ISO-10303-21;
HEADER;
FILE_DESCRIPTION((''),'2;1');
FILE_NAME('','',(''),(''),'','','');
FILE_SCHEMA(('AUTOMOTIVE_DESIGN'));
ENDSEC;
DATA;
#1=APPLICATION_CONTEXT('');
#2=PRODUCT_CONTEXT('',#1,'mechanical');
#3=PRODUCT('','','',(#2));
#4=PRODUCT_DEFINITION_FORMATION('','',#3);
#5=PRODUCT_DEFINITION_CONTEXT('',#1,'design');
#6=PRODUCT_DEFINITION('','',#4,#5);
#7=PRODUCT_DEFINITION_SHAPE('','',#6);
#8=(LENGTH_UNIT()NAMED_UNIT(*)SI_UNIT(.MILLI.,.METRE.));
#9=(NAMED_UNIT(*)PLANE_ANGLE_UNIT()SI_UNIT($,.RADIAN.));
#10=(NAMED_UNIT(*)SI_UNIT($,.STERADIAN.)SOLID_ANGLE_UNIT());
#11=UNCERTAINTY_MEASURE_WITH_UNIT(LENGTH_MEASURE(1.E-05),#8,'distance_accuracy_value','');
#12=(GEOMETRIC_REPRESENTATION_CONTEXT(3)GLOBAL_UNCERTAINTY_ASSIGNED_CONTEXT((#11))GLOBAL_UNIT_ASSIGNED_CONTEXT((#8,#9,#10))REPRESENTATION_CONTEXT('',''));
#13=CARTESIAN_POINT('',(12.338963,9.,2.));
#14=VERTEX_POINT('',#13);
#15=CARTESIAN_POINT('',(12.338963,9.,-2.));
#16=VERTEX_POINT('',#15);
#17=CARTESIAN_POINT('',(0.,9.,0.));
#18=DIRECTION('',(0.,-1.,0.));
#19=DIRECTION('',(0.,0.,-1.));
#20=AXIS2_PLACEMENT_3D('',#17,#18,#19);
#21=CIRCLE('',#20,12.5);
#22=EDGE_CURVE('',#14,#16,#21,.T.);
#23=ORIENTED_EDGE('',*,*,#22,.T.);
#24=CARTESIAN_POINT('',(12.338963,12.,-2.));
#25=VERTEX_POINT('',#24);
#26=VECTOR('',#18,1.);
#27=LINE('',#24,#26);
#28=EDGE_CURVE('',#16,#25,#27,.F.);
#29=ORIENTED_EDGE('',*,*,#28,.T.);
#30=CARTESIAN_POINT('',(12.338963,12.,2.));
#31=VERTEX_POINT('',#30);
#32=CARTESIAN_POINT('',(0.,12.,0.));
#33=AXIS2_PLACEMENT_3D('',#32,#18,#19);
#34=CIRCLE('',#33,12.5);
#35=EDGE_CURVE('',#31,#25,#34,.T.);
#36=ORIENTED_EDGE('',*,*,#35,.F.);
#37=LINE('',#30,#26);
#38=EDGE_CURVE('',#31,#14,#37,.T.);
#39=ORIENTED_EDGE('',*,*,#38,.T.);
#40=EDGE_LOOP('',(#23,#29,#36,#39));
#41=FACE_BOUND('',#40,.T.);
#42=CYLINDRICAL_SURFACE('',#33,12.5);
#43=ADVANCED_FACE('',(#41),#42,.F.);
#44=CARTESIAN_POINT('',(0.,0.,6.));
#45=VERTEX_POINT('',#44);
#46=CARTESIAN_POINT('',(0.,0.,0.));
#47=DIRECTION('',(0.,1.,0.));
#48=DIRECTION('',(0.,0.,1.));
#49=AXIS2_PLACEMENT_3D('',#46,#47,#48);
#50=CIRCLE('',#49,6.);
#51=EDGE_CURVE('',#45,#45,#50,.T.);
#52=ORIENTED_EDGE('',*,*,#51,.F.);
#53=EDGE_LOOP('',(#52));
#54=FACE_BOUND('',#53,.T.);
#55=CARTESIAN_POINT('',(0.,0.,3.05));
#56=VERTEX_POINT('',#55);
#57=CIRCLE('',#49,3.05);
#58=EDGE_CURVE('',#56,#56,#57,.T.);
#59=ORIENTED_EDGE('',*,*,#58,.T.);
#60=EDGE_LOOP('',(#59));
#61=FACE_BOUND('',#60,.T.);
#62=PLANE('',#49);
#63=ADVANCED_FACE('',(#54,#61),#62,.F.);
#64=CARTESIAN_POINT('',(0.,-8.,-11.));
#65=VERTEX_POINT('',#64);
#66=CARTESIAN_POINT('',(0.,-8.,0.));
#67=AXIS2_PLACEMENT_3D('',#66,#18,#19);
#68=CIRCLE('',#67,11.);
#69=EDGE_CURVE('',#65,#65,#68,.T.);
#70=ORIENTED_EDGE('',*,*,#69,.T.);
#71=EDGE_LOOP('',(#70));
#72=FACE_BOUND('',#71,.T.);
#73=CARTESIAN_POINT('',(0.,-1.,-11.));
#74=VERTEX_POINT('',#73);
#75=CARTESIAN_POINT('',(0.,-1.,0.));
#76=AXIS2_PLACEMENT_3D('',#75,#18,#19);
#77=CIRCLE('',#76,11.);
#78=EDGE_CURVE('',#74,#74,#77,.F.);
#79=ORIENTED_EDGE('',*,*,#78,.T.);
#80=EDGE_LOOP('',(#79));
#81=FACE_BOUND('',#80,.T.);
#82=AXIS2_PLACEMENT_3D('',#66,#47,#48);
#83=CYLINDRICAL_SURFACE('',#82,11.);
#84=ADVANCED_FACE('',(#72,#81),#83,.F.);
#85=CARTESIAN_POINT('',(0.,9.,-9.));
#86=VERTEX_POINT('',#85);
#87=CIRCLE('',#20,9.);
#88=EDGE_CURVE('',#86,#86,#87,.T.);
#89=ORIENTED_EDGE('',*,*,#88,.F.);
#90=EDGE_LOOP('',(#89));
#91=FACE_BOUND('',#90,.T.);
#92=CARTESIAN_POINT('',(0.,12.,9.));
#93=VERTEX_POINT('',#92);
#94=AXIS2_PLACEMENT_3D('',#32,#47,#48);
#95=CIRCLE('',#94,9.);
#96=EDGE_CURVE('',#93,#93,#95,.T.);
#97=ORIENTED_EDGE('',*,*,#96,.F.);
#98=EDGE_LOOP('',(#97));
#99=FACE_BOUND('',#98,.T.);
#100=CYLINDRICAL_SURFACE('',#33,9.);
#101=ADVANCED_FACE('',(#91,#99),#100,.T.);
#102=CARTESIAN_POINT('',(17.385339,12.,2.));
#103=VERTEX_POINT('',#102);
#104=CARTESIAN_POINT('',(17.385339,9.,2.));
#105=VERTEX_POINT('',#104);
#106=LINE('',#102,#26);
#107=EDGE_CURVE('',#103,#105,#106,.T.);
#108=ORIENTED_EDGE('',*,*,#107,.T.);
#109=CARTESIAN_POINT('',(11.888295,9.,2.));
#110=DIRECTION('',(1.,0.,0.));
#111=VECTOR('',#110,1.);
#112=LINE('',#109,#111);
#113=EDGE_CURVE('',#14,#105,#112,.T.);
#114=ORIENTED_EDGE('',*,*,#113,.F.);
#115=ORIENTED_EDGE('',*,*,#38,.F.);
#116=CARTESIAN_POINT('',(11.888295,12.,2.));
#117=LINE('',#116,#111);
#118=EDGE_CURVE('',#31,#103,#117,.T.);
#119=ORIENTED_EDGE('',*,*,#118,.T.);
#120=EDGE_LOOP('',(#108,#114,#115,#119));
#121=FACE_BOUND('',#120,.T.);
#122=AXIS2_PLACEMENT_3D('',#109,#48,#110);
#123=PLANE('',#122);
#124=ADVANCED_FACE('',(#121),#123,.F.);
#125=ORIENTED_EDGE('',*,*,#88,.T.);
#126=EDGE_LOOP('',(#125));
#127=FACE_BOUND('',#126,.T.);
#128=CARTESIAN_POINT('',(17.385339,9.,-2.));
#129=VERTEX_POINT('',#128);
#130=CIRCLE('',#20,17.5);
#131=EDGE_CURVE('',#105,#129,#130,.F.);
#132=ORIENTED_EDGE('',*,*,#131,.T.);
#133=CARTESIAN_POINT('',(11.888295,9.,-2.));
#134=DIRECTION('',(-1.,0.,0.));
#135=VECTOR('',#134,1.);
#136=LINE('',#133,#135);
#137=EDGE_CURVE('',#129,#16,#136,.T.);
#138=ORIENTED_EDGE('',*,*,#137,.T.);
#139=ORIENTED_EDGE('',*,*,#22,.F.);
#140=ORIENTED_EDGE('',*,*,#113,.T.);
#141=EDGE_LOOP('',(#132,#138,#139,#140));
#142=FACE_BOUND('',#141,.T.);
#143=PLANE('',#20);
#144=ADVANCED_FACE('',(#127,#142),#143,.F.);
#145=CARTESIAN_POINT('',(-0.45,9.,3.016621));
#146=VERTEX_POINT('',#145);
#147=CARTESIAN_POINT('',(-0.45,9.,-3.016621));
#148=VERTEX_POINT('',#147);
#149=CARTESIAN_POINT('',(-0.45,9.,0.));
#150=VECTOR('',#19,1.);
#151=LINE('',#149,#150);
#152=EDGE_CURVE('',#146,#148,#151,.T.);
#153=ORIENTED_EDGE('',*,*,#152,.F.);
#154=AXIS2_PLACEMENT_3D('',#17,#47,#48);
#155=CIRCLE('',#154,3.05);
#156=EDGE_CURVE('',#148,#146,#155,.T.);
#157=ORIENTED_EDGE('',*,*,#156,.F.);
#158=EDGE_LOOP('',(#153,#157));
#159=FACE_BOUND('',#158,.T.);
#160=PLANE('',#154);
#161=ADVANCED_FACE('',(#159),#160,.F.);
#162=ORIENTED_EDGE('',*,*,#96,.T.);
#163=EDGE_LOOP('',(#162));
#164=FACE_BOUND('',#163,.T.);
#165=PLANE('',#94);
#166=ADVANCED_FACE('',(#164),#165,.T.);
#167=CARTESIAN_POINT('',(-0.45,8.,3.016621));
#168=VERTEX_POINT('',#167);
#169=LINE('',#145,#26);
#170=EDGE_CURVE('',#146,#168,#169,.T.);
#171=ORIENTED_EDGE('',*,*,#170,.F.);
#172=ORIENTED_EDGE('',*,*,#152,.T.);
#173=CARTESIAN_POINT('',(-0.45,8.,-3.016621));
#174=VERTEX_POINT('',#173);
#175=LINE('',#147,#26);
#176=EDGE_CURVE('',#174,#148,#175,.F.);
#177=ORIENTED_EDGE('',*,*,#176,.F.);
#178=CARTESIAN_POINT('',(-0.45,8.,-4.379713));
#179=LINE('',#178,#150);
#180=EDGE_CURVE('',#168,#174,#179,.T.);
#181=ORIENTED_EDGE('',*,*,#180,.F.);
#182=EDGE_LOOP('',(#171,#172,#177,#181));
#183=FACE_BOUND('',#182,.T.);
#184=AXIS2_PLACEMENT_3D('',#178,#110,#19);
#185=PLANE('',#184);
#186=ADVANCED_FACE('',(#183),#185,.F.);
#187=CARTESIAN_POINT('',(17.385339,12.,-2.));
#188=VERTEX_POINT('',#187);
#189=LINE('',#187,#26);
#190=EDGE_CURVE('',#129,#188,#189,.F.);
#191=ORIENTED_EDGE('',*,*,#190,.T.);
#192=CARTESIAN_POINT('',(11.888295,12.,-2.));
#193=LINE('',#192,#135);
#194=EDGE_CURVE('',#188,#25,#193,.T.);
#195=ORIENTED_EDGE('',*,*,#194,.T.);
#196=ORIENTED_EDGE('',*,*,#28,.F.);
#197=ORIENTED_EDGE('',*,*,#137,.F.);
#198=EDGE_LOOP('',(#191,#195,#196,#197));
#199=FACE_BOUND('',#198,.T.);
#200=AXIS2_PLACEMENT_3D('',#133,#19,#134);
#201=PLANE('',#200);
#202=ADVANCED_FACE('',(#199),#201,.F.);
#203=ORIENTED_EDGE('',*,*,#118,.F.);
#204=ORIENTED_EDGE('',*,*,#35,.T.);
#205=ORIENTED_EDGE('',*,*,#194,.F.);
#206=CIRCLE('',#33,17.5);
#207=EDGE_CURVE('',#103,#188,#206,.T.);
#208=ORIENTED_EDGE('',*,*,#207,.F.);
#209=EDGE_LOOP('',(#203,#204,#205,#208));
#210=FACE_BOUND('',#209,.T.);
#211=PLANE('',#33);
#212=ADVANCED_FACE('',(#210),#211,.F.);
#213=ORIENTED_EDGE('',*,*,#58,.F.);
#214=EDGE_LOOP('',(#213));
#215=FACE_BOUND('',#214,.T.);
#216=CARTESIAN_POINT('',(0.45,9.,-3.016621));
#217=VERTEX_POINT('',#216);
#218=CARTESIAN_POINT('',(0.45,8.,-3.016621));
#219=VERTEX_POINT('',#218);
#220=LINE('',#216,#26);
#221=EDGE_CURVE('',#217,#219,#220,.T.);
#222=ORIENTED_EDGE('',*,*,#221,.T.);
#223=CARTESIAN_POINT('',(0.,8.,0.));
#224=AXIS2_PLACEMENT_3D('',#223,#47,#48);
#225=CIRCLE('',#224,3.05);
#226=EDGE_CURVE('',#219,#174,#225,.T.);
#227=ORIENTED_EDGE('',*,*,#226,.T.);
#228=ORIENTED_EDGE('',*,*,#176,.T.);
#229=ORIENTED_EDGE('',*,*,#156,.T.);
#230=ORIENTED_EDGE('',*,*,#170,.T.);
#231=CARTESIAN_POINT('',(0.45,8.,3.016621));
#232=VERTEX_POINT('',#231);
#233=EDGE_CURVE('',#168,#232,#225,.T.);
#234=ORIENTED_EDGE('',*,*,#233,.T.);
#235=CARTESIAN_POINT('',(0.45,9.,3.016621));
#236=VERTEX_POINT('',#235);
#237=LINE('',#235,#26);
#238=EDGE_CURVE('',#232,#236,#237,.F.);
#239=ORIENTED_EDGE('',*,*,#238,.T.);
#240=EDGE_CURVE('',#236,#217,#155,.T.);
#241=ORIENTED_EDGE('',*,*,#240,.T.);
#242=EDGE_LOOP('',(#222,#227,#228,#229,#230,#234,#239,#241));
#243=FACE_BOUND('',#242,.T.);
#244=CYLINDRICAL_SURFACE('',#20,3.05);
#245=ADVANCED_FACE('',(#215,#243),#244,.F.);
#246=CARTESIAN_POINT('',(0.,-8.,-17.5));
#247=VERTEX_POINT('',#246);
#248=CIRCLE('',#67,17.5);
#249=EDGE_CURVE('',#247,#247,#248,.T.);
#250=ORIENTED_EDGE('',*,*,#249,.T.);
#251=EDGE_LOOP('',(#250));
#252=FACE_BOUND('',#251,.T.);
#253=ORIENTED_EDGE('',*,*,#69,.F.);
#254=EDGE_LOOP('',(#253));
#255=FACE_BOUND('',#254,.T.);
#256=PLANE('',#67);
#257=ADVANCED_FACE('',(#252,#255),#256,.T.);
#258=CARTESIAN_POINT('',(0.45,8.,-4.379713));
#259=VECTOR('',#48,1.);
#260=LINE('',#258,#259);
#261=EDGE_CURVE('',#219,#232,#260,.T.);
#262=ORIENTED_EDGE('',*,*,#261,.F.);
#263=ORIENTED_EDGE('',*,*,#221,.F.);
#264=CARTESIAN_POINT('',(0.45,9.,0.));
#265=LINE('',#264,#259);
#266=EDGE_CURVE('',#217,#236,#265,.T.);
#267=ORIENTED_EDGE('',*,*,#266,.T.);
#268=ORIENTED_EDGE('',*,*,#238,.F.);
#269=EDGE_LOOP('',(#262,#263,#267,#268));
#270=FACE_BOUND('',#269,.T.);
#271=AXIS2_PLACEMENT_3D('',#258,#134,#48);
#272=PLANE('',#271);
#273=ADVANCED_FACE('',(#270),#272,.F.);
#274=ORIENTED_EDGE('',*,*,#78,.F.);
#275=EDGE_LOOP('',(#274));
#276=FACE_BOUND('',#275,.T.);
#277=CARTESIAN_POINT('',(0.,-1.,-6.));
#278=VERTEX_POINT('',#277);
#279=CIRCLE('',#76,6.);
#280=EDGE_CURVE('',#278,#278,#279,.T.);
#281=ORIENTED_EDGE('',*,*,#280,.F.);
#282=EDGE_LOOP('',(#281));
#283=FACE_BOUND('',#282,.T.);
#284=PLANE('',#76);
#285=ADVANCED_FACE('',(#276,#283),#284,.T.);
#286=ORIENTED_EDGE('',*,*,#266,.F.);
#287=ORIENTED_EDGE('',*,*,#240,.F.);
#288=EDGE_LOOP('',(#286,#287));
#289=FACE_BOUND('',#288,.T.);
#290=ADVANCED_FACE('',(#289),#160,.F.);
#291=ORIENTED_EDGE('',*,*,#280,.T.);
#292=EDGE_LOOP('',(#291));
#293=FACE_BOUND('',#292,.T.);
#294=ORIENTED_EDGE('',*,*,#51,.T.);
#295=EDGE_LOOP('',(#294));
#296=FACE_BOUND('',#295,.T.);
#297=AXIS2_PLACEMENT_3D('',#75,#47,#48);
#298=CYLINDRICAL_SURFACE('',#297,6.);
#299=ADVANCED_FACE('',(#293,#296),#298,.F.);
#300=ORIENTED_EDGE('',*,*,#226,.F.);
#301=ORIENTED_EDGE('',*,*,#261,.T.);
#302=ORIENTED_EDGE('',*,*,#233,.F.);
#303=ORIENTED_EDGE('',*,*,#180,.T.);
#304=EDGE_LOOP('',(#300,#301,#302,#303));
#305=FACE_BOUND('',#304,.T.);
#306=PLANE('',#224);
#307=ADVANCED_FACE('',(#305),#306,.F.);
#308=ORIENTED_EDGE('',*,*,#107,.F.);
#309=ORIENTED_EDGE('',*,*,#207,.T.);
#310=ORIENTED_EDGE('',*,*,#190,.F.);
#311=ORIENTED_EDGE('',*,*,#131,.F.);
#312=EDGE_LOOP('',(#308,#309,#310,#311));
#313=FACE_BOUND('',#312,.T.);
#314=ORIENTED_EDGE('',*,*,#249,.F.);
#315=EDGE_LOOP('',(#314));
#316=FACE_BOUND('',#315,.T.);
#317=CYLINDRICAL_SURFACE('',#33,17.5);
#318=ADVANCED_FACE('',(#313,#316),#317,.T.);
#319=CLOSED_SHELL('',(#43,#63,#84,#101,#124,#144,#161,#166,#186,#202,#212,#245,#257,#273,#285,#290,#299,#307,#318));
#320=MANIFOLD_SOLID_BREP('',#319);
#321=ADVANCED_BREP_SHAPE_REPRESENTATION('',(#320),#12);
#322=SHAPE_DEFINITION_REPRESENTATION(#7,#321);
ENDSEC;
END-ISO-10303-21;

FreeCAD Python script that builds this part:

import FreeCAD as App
import Part
import Sketcher

doc = App.newDocument("Part")
body = doc.addObject("PartDesign::Body", "Body")

# Sketch on XZ plane
sketch1 = body.newObject("Sketcher::SketchObject", "Sketch")
sketch1.AttachmentSupport = (doc.getObject("XZ_Plane"), [""])
sketch1.MapMode = "FlatFace"
sketch1.addGeometry([
    Part.Circle(App.Vector(0, 0, 0), App.Vector(0, 0, 1), 6),
    Part.Circle(App.Vector(0, 0, 0), App.Vector(0, 0, 1), 3),
], False)
sketch1.addConstraint([
    Sketcher.Constraint("Coincident", 0, 3, -1, 1),
    Sketcher.Constraint("Coincident", 1, 3, -1, 1),
    Sketcher.Constraint("Diameter", 0, 12.0),
    Sketcher.Constraint("Diameter", 1, 6.1),
])
pad1 = body.newObject("PartDesign::Pad", "Pad")
pad1.Profile = sketch1
pad1.Length = 9
pad1.Reversed = True

# Sketch on XZ plane
sketch2 = body.newObject("Sketcher::SketchObject", "Sketch001")
sketch2.AttachmentSupport = (doc.getObject("XZ_Plane"), [""])
sketch2.MapMode = "FlatFace"
sketch2.AttachmentOffset = App.Placement(App.Vector(0, 0, -9), App.Rotation())
sketch2.addGeometry(Part.Circle(App.Vector(0, 0, 0), App.Vector(0, 0, 1), 9), False)
sketch2.addConstraint([
    Sketcher.Constraint("Coincident", 0, 3, -1, 1),
    Sketcher.Constraint("Diameter", 0, 18.0),
])
pad2 = body.newObject("PartDesign::Pad", "Pad001")
pad2.Profile = sketch2
pad2.Length = 3
pad2.Reversed = True

# Sketch on XZ plane
sketch3 = body.newObject("Sketcher::SketchObject", "Sketch002")
sketch3.AttachmentSupport = (doc.getObject("XZ_Plane"), [""])
sketch3.MapMode = "FlatFace"
sketch3.AttachmentOffset = App.Placement(App.Vector(0, 0, -9), App.Rotation())
sketch3.addGeometry([
    Part.LineSegment(App.Vector(-0.5, 4.4, 0), App.Vector(-0.5, -4.4, 0)),
    Part.LineSegment(App.Vector(-0.5, -4.4, 0), App.Vector(0.5, -4.4, 0)),
    Part.LineSegment(App.Vector(0.5, -4.4, 0), App.Vector(0.5, 4.4, 0)),
    Part.LineSegment(App.Vector(0.5, 4.4, 0), App.Vector(-0.5, 4.4, 0)),
], False)
sketch3.addConstraint([
    Sketcher.Constraint("Coincident", 0, 2, 1, 1),
    Sketcher.Constraint("Coincident", 1, 2, 2, 1),
    Sketcher.Constraint("Coincident", 2, 2, 3, 1),
    Sketcher.Constraint("Coincident", 3, 2, 0, 1),
    Sketcher.Constraint("Vertical", 0),
    Sketcher.Constraint("Horizontal", 1),
    Sketcher.Constraint("Vertical", 2),
    Sketcher.Constraint("Horizontal", 3),
    Sketcher.Constraint("Symmetric", 0, 2, 2, 2, -1, 1),
    Sketcher.Constraint("DistanceX", 1, 1, 1, 2, 0.9),
    Sketcher.Constraint("DistanceY", 0, 2, 0, 1, 8.759426),
])
pad3 = body.newObject("PartDesign::Pad", "Pad002")
pad3.Profile = sketch3
pad3.Length = 1

# Sketch on XZ plane
sketch4 = body.newObject("Sketcher::SketchObject", "Sketch003")
sketch4.AttachmentSupport = (doc.getObject("XZ_Plane"), [""])
sketch4.MapMode = "FlatFace"
sketch4.AttachmentOffset = App.Placement(App.Vector(0, 0, 1), App.Rotation())
sketch4.addGeometry([
    Part.Circle(App.Vector(0, 0, 0), App.Vector(0, 0, 1), 12),
    Part.Circle(App.Vector(0, 0, 0), App.Vector(0, 0, 1), 6),
], False)
sketch4.addConstraint([
    Sketcher.Constraint("Coincident", 0, 3, -1, 1),
    Sketcher.Constraint("Coincident", 1, 3, -1, 1),
    Sketcher.Constraint("Diameter", 0, 25.0),
    Sketcher.Constraint("Diameter", 1, 12.0),
])
pad4 = body.newObject("PartDesign::Pad", "Pad003")
pad4.Profile = sketch4
pad4.Length = 10
pad4.Reversed = True

# Sketch on XZ plane
sketch5 = body.newObject("Sketcher::SketchObject", "Sketch004")
sketch5.AttachmentSupport = (doc.getObject("XZ_Plane"), [""])
sketch5.MapMode = "FlatFace"
sketch5.AttachmentOffset = App.Placement(App.Vector(0, 0, 8), App.Rotation())
sketch5.addGeometry([
    Part.Circle(App.Vector(0, 0, 0), App.Vector(0, 0, 1), 12),
    Part.Circle(App.Vector(0, 0, 0), App.Vector(0, 0, 1), 11),
], False)
sketch5.addConstraint([
    Sketcher.Constraint("Coincident", 0, 3, -1, 1),
    Sketcher.Constraint("Coincident", 1, 3, -1, 1),
    Sketcher.Constraint("Diameter", 0, 25.0),
    Sketcher.Constraint("Diameter", 1, 22.0),
])
pad5 = body.newObject("PartDesign::Pad", "Pad004")
pad5.Profile = sketch5
pad5.Length = 7
pad5.Reversed = True

# Sketch on XZ plane
sketch6 = body.newObject("Sketcher::SketchObject", "Sketch005")
sketch6.AttachmentSupport = (doc.getObject("XZ_Plane"), [""])
sketch6.MapMode = "FlatFace"
sketch6.AttachmentOffset = App.Placement(App.Vector(0, 0, 8), App.Rotation())
sketch6.addGeometry([
    Part.Circle(App.Vector(0, 0, 0), App.Vector(0, 0, 1), 18),
    Part.Circle(App.Vector(0, 0, 0), App.Vector(0, 0, 1), 12),
], False)
sketch6.addConstraint([
    Sketcher.Constraint("Coincident", 0, 3, -1, 1),
    Sketcher.Constraint("Coincident", 1, 3, -1, 1),
    Sketcher.Constraint("Diameter", 0, 35.0),
    Sketcher.Constraint("Diameter", 1, 25.0),
])
pad6 = body.newObject("PartDesign::Pad", "Pad005")
pad6.Profile = sketch6
pad6.Length = 20
pad6.Reversed = True

# Sketch on XZ plane
sketch7 = body.newObject("Sketcher::SketchObject", "Sketch006")
sketch7.AttachmentSupport = (doc.getObject("XZ_Plane"), [""])
sketch7.MapMode = "FlatFace"
sketch7.AttachmentOffset = App.Placement(App.Vector(0, 0, -12), App.Rotation())
sketch7.addGeometry([
    Part.LineSegment(App.Vector(11.9, -2, 0), App.Vector(11.9, 2, 0)),
    Part.LineSegment(App.Vector(11.9, 2, 0), App.Vector(23.1, 2, 0)),
    Part.LineSegment(App.Vector(23.1, 2, 0), App.Vector(23.1, -2, 0)),
    Part.LineSegment(App.Vector(23.1, -2, 0), App.Vector(11.9, -2, 0)),
], False)
sketch7.addConstraint([
    Sketcher.Constraint("Coincident", 0, 2, 1, 1),
    Sketcher.Constraint("Coincident", 1, 2, 2, 1),
    Sketcher.Constraint("Coincident", 2, 2, 3, 1),
    Sketcher.Constraint("Coincident", 3, 2, 0, 1),
    Sketcher.Constraint("Vertical", 0),
    Sketcher.Constraint("Horizontal", 1),
    Sketcher.Constraint("Vertical", 2),
    Sketcher.Constraint("Horizontal", 3),
    Sketcher.Constraint("DistanceY", 0, 1, 0, 2, 4.0),
    Sketcher.Constraint("DistanceY", -1, 1, 0, 2, 2.0),
    Sketcher.Constraint("DistanceX", 1, 1, 1, 2, 11.223411),
    Sketcher.Constraint("DistanceX", -1, 1, 0, 2, 11.888295),
])
pocket1 = body.newObject("PartDesign::Pocket", "Pocket")
pocket1.Profile = sketch7
pocket1.Length = 3
pocket1.Reversed = True

doc.recompute()
